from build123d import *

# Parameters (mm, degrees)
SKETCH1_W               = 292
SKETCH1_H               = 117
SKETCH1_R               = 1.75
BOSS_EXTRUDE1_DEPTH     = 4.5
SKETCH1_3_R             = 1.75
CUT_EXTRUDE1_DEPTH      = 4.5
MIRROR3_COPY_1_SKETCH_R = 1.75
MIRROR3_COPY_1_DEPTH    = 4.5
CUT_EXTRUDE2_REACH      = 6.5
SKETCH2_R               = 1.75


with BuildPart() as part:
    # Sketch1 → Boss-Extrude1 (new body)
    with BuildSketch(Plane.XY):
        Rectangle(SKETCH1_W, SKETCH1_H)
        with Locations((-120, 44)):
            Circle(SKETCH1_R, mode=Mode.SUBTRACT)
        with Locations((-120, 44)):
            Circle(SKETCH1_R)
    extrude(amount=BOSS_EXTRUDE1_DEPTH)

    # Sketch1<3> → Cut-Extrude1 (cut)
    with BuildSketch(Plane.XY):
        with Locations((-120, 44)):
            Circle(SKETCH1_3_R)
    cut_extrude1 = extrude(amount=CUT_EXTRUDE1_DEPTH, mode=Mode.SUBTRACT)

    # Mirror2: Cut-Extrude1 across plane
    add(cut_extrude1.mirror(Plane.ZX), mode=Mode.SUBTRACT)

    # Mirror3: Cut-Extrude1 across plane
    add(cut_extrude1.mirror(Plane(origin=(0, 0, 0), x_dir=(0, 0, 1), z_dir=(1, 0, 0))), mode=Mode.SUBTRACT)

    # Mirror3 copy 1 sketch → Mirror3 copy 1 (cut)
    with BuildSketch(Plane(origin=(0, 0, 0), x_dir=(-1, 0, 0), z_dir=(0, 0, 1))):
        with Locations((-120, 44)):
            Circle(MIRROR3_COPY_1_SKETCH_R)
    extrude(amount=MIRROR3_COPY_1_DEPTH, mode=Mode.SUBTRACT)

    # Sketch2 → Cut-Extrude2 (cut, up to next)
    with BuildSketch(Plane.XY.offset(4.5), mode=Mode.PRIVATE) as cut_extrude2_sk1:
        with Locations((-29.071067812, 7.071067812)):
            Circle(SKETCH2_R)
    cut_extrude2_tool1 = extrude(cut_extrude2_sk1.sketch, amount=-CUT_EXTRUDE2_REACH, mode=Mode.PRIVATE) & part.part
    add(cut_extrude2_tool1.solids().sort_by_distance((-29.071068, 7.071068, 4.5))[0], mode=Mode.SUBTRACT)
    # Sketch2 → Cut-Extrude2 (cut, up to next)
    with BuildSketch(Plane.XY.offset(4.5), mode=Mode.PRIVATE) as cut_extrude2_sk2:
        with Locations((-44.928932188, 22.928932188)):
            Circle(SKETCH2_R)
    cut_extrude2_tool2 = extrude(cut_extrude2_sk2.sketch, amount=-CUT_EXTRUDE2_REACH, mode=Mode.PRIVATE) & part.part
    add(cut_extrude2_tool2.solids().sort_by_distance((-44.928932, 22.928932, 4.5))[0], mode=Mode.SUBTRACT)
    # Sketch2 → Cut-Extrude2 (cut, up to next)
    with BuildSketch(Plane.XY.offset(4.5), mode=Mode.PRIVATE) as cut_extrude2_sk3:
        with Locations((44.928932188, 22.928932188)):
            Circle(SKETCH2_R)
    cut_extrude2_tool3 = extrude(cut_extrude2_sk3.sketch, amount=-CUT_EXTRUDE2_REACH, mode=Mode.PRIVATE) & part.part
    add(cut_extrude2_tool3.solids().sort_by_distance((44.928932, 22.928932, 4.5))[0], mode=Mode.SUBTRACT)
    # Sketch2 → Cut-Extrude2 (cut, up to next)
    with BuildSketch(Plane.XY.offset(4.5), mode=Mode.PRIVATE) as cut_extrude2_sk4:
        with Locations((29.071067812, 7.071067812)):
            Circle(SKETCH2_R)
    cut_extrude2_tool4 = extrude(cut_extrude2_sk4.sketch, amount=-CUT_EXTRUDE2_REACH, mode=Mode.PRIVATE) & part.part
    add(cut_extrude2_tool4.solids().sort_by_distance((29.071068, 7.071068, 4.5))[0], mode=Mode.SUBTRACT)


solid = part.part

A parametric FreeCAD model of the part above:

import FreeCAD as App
import Part
import Sketcher

doc = App.newDocument("Part")
body = doc.addObject("PartDesign::Body", "Body")

sketch1 = body.newObject("Sketcher::SketchObject", "Sketch")
sketch1.AttachmentSupport = (doc.getObject("XY_Plane"), [""])
sketch1.MapMode = "FlatFace"
sketch1.addGeometry([
    Part.LineSegment(App.Vector(-146, 58, 0), App.Vector(-146, -58, 0)),
    Part.LineSegment(App.Vector(-146, -58, 0), App.Vector(146, -58, 0)),
    Part.LineSegment(App.Vector(146, -58, 0), App.Vector(146, 58, 0)),
    Part.LineSegment(App.Vector(146, 58, 0), App.Vector(-146, 58, 0)),
], False)
sketch1.addConstraint([
    Sketcher.Constraint("Coincident", 0, 2, 1, 1),
    Sketcher.Constraint("Coincident", 1, 2, 2, 1),
    Sketcher.Constraint("Coincident", 2, 2, 3, 1),
    Sketcher.Constraint("Coincident", 3, 2, 0, 1),
    Sketcher.Constraint("Vertical", 0),
    Sketcher.Constraint("Horizontal", 1),
    Sketcher.Constraint("Vertical", 2),
    Sketcher.Constraint("Horizontal", 3),
    Sketcher.Constraint("Symmetric", 0, 2, 2, 2, -1, 1),
    Sketcher.Constraint("DistanceX", 1, 1, 1, 2, 292.0),
    Sketcher.Constraint("DistanceY", 0, 2, 0, 1, 117.0),
])
pad1 = body.newObject("PartDesign::Pad", "Pad")
pad1.Profile = sketch1
pad1.Length = 4.5

sketch2 = body.newObject("Sketcher::SketchObject", "Sketch001")
sketch2.AttachmentSupport = (doc.getObject("XY_Plane"), [""])
sketch2.MapMode = "FlatFace"
sketch2.addGeometry(Part.Circle(App.Vector(-120, 44, 0), App.Vector(0, 0, 1), 1.8), False)
sketch2.addConstraint([
    Sketcher.Constraint("Diameter", 0, 3.5),
    Sketcher.Constraint("DistanceX", 0, 3, -1, 1, 120.0),
    Sketcher.Constraint("DistanceY", -1, 1, 0, 3, 44.0),
])
pocket1 = body.newObject("PartDesign::Pocket", "Pocket")
pocket1.Profile = sketch2
pocket1.Length = 4.5
pocket1.Reversed = True
doc.recompute()

mirrored = body.newObject("PartDesign::Mirrored", "Mirrored")
mirrored.Originals = [pocket1]
mirrored.MirrorPlane = (doc.getObject("XZ_Plane"), [""])
body.Tip = mirrored
doc.recompute()

mirrored2 = body.newObject("PartDesign::Mirrored", "Mirrored001")
mirrored2.Originals = [pocket1]
mirrored2.MirrorPlane = (doc.getObject("YZ_Plane"), [""])
body.Tip = mirrored2

sketch3 = body.newObject("Sketcher::SketchObject", "Sketch002")
sketch3.AttachmentSupport = (doc.getObject("XY_Plane"), [""])
sketch3.MapMode = "FlatFace"
sketch3.addGeometry(Part.Circle(App.Vector(120, -44, 0), App.Vector(0, 0, 1), 1.8), False)
sketch3.addConstraint([
    Sketcher.Constraint("Diameter", 0, 3.5),
    Sketcher.Constraint("DistanceX", -1, 1, 0, 3, 120.0),
    Sketcher.Constraint("DistanceY", 0, 3, -1, 1, 44.0),
])
pocket2 = body.newObject("PartDesign::Pocket", "Pocket001")
pocket2.Profile = sketch3
pocket2.Length = 4.5
pocket2.Reversed = True

sketch4 = body.newObject("Sketcher::SketchObject", "Sketch003")
sketch4.AttachmentSupport = (doc.getObject("XY_Plane"), [""])
sketch4.MapMode = "FlatFace"
sketch4.AttachmentOffset = App.Placement(App.Vector(0, 0, 4.5), App.Rotation())
sketch4.addGeometry(Part.Circle(App.Vector(-29.1, 7.1, 0), App.Vector(0, 0, 1), 1.8), False)
sketch4.addConstraint([
    Sketcher.Constraint("Diameter", 0, 3.5),
    Sketcher.Constraint("DistanceX", 0, 3, -1, 1, 29.071068),
    Sketcher.Constraint("DistanceY", -1, 1, 0, 3, 7.071068),
])
pocket3 = body.newObject("PartDesign::Pocket", "Pocket002")
pocket3.Profile = sketch4
pocket3.Type = "UpToFirst"

sketch5 = body.newObject("Sketcher::SketchObject", "Sketch004")
sketch5.AttachmentSupport = (doc.getObject("XY_Plane"), [""])
sketch5.MapMode = "FlatFace"
sketch5.AttachmentOffset = App.Placement(App.Vector(0, 0, 4.5), App.Rotation())
sketch5.addGeometry(Part.Circle(App.Vector(-44.9, 22.9, 0), App.Vector(0, 0, 1), 1.8), False)
sketch5.addConstraint([
    Sketcher.Constraint("Diameter", 0, 3.5),
    Sketcher.Constraint("DistanceX", 0, 3, -1, 1, 44.928932),
    Sketcher.Constraint("DistanceY", -1, 1, 0, 3, 22.928932),
])
pocket4 = body.newObject("PartDesign::Pocket", "Pocket003")
pocket4.Profile = sketch5
pocket4.Type = "UpToFirst"

sketch6 = body.newObject("Sketcher::SketchObject", "Sketch005")
sketch6.AttachmentSupport = (doc.getObject("XY_Plane"), [""])
sketch6.MapMode = "FlatFace"
sketch6.AttachmentOffset = App.Placement(App.Vector(0, 0, 4.5), App.Rotation())
sketch6.addGeometry(Part.Circle(App.Vector(44.9, 22.9, 0), App.Vector(0, 0, 1), 1.8), False)
sketch6.addConstraint([
    Sketcher.Constraint("Diameter", 0, 3.5),
    Sketcher.Constraint("DistanceX", -1, 1, 0, 3, 44.928932),
    Sketcher.Constraint("DistanceY", -1, 1, 0, 3, 22.928932),
])
pocket5 = body.newObject("PartDesign::Pocket", "Pocket004")
pocket5.Profile = sketch6
pocket5.Type = "UpToFirst"

sketch7 = body.newObject("Sketcher::SketchObject", "Sketch006")
sketch7.AttachmentSupport = (doc.getObject("XY_Plane"), [""])
sketch7.MapMode = "FlatFace"
sketch7.AttachmentOffset = App.Placement(App.Vector(0, 0, 4.5), App.Rotation())
sketch7.addGeometry(Part.Circle(App.Vector(29.1, 7.1, 0), App.Vector(0, 0, 1), 1.8), False)
sketch7.addConstraint([
    Sketcher.Constraint("Diameter", 0, 3.5),
    Sketcher.Constraint("DistanceX", -1, 1, 0, 3, 29.071068),
    Sketcher.Constraint("DistanceY", -1, 1, 0, 3, 7.071068),
])
pocket6 = body.newObject("PartDesign::Pocket", "Pocket005")
pocket6.Profile = sketch7
pocket6.Type = "UpToFirst"

doc.recompute()
